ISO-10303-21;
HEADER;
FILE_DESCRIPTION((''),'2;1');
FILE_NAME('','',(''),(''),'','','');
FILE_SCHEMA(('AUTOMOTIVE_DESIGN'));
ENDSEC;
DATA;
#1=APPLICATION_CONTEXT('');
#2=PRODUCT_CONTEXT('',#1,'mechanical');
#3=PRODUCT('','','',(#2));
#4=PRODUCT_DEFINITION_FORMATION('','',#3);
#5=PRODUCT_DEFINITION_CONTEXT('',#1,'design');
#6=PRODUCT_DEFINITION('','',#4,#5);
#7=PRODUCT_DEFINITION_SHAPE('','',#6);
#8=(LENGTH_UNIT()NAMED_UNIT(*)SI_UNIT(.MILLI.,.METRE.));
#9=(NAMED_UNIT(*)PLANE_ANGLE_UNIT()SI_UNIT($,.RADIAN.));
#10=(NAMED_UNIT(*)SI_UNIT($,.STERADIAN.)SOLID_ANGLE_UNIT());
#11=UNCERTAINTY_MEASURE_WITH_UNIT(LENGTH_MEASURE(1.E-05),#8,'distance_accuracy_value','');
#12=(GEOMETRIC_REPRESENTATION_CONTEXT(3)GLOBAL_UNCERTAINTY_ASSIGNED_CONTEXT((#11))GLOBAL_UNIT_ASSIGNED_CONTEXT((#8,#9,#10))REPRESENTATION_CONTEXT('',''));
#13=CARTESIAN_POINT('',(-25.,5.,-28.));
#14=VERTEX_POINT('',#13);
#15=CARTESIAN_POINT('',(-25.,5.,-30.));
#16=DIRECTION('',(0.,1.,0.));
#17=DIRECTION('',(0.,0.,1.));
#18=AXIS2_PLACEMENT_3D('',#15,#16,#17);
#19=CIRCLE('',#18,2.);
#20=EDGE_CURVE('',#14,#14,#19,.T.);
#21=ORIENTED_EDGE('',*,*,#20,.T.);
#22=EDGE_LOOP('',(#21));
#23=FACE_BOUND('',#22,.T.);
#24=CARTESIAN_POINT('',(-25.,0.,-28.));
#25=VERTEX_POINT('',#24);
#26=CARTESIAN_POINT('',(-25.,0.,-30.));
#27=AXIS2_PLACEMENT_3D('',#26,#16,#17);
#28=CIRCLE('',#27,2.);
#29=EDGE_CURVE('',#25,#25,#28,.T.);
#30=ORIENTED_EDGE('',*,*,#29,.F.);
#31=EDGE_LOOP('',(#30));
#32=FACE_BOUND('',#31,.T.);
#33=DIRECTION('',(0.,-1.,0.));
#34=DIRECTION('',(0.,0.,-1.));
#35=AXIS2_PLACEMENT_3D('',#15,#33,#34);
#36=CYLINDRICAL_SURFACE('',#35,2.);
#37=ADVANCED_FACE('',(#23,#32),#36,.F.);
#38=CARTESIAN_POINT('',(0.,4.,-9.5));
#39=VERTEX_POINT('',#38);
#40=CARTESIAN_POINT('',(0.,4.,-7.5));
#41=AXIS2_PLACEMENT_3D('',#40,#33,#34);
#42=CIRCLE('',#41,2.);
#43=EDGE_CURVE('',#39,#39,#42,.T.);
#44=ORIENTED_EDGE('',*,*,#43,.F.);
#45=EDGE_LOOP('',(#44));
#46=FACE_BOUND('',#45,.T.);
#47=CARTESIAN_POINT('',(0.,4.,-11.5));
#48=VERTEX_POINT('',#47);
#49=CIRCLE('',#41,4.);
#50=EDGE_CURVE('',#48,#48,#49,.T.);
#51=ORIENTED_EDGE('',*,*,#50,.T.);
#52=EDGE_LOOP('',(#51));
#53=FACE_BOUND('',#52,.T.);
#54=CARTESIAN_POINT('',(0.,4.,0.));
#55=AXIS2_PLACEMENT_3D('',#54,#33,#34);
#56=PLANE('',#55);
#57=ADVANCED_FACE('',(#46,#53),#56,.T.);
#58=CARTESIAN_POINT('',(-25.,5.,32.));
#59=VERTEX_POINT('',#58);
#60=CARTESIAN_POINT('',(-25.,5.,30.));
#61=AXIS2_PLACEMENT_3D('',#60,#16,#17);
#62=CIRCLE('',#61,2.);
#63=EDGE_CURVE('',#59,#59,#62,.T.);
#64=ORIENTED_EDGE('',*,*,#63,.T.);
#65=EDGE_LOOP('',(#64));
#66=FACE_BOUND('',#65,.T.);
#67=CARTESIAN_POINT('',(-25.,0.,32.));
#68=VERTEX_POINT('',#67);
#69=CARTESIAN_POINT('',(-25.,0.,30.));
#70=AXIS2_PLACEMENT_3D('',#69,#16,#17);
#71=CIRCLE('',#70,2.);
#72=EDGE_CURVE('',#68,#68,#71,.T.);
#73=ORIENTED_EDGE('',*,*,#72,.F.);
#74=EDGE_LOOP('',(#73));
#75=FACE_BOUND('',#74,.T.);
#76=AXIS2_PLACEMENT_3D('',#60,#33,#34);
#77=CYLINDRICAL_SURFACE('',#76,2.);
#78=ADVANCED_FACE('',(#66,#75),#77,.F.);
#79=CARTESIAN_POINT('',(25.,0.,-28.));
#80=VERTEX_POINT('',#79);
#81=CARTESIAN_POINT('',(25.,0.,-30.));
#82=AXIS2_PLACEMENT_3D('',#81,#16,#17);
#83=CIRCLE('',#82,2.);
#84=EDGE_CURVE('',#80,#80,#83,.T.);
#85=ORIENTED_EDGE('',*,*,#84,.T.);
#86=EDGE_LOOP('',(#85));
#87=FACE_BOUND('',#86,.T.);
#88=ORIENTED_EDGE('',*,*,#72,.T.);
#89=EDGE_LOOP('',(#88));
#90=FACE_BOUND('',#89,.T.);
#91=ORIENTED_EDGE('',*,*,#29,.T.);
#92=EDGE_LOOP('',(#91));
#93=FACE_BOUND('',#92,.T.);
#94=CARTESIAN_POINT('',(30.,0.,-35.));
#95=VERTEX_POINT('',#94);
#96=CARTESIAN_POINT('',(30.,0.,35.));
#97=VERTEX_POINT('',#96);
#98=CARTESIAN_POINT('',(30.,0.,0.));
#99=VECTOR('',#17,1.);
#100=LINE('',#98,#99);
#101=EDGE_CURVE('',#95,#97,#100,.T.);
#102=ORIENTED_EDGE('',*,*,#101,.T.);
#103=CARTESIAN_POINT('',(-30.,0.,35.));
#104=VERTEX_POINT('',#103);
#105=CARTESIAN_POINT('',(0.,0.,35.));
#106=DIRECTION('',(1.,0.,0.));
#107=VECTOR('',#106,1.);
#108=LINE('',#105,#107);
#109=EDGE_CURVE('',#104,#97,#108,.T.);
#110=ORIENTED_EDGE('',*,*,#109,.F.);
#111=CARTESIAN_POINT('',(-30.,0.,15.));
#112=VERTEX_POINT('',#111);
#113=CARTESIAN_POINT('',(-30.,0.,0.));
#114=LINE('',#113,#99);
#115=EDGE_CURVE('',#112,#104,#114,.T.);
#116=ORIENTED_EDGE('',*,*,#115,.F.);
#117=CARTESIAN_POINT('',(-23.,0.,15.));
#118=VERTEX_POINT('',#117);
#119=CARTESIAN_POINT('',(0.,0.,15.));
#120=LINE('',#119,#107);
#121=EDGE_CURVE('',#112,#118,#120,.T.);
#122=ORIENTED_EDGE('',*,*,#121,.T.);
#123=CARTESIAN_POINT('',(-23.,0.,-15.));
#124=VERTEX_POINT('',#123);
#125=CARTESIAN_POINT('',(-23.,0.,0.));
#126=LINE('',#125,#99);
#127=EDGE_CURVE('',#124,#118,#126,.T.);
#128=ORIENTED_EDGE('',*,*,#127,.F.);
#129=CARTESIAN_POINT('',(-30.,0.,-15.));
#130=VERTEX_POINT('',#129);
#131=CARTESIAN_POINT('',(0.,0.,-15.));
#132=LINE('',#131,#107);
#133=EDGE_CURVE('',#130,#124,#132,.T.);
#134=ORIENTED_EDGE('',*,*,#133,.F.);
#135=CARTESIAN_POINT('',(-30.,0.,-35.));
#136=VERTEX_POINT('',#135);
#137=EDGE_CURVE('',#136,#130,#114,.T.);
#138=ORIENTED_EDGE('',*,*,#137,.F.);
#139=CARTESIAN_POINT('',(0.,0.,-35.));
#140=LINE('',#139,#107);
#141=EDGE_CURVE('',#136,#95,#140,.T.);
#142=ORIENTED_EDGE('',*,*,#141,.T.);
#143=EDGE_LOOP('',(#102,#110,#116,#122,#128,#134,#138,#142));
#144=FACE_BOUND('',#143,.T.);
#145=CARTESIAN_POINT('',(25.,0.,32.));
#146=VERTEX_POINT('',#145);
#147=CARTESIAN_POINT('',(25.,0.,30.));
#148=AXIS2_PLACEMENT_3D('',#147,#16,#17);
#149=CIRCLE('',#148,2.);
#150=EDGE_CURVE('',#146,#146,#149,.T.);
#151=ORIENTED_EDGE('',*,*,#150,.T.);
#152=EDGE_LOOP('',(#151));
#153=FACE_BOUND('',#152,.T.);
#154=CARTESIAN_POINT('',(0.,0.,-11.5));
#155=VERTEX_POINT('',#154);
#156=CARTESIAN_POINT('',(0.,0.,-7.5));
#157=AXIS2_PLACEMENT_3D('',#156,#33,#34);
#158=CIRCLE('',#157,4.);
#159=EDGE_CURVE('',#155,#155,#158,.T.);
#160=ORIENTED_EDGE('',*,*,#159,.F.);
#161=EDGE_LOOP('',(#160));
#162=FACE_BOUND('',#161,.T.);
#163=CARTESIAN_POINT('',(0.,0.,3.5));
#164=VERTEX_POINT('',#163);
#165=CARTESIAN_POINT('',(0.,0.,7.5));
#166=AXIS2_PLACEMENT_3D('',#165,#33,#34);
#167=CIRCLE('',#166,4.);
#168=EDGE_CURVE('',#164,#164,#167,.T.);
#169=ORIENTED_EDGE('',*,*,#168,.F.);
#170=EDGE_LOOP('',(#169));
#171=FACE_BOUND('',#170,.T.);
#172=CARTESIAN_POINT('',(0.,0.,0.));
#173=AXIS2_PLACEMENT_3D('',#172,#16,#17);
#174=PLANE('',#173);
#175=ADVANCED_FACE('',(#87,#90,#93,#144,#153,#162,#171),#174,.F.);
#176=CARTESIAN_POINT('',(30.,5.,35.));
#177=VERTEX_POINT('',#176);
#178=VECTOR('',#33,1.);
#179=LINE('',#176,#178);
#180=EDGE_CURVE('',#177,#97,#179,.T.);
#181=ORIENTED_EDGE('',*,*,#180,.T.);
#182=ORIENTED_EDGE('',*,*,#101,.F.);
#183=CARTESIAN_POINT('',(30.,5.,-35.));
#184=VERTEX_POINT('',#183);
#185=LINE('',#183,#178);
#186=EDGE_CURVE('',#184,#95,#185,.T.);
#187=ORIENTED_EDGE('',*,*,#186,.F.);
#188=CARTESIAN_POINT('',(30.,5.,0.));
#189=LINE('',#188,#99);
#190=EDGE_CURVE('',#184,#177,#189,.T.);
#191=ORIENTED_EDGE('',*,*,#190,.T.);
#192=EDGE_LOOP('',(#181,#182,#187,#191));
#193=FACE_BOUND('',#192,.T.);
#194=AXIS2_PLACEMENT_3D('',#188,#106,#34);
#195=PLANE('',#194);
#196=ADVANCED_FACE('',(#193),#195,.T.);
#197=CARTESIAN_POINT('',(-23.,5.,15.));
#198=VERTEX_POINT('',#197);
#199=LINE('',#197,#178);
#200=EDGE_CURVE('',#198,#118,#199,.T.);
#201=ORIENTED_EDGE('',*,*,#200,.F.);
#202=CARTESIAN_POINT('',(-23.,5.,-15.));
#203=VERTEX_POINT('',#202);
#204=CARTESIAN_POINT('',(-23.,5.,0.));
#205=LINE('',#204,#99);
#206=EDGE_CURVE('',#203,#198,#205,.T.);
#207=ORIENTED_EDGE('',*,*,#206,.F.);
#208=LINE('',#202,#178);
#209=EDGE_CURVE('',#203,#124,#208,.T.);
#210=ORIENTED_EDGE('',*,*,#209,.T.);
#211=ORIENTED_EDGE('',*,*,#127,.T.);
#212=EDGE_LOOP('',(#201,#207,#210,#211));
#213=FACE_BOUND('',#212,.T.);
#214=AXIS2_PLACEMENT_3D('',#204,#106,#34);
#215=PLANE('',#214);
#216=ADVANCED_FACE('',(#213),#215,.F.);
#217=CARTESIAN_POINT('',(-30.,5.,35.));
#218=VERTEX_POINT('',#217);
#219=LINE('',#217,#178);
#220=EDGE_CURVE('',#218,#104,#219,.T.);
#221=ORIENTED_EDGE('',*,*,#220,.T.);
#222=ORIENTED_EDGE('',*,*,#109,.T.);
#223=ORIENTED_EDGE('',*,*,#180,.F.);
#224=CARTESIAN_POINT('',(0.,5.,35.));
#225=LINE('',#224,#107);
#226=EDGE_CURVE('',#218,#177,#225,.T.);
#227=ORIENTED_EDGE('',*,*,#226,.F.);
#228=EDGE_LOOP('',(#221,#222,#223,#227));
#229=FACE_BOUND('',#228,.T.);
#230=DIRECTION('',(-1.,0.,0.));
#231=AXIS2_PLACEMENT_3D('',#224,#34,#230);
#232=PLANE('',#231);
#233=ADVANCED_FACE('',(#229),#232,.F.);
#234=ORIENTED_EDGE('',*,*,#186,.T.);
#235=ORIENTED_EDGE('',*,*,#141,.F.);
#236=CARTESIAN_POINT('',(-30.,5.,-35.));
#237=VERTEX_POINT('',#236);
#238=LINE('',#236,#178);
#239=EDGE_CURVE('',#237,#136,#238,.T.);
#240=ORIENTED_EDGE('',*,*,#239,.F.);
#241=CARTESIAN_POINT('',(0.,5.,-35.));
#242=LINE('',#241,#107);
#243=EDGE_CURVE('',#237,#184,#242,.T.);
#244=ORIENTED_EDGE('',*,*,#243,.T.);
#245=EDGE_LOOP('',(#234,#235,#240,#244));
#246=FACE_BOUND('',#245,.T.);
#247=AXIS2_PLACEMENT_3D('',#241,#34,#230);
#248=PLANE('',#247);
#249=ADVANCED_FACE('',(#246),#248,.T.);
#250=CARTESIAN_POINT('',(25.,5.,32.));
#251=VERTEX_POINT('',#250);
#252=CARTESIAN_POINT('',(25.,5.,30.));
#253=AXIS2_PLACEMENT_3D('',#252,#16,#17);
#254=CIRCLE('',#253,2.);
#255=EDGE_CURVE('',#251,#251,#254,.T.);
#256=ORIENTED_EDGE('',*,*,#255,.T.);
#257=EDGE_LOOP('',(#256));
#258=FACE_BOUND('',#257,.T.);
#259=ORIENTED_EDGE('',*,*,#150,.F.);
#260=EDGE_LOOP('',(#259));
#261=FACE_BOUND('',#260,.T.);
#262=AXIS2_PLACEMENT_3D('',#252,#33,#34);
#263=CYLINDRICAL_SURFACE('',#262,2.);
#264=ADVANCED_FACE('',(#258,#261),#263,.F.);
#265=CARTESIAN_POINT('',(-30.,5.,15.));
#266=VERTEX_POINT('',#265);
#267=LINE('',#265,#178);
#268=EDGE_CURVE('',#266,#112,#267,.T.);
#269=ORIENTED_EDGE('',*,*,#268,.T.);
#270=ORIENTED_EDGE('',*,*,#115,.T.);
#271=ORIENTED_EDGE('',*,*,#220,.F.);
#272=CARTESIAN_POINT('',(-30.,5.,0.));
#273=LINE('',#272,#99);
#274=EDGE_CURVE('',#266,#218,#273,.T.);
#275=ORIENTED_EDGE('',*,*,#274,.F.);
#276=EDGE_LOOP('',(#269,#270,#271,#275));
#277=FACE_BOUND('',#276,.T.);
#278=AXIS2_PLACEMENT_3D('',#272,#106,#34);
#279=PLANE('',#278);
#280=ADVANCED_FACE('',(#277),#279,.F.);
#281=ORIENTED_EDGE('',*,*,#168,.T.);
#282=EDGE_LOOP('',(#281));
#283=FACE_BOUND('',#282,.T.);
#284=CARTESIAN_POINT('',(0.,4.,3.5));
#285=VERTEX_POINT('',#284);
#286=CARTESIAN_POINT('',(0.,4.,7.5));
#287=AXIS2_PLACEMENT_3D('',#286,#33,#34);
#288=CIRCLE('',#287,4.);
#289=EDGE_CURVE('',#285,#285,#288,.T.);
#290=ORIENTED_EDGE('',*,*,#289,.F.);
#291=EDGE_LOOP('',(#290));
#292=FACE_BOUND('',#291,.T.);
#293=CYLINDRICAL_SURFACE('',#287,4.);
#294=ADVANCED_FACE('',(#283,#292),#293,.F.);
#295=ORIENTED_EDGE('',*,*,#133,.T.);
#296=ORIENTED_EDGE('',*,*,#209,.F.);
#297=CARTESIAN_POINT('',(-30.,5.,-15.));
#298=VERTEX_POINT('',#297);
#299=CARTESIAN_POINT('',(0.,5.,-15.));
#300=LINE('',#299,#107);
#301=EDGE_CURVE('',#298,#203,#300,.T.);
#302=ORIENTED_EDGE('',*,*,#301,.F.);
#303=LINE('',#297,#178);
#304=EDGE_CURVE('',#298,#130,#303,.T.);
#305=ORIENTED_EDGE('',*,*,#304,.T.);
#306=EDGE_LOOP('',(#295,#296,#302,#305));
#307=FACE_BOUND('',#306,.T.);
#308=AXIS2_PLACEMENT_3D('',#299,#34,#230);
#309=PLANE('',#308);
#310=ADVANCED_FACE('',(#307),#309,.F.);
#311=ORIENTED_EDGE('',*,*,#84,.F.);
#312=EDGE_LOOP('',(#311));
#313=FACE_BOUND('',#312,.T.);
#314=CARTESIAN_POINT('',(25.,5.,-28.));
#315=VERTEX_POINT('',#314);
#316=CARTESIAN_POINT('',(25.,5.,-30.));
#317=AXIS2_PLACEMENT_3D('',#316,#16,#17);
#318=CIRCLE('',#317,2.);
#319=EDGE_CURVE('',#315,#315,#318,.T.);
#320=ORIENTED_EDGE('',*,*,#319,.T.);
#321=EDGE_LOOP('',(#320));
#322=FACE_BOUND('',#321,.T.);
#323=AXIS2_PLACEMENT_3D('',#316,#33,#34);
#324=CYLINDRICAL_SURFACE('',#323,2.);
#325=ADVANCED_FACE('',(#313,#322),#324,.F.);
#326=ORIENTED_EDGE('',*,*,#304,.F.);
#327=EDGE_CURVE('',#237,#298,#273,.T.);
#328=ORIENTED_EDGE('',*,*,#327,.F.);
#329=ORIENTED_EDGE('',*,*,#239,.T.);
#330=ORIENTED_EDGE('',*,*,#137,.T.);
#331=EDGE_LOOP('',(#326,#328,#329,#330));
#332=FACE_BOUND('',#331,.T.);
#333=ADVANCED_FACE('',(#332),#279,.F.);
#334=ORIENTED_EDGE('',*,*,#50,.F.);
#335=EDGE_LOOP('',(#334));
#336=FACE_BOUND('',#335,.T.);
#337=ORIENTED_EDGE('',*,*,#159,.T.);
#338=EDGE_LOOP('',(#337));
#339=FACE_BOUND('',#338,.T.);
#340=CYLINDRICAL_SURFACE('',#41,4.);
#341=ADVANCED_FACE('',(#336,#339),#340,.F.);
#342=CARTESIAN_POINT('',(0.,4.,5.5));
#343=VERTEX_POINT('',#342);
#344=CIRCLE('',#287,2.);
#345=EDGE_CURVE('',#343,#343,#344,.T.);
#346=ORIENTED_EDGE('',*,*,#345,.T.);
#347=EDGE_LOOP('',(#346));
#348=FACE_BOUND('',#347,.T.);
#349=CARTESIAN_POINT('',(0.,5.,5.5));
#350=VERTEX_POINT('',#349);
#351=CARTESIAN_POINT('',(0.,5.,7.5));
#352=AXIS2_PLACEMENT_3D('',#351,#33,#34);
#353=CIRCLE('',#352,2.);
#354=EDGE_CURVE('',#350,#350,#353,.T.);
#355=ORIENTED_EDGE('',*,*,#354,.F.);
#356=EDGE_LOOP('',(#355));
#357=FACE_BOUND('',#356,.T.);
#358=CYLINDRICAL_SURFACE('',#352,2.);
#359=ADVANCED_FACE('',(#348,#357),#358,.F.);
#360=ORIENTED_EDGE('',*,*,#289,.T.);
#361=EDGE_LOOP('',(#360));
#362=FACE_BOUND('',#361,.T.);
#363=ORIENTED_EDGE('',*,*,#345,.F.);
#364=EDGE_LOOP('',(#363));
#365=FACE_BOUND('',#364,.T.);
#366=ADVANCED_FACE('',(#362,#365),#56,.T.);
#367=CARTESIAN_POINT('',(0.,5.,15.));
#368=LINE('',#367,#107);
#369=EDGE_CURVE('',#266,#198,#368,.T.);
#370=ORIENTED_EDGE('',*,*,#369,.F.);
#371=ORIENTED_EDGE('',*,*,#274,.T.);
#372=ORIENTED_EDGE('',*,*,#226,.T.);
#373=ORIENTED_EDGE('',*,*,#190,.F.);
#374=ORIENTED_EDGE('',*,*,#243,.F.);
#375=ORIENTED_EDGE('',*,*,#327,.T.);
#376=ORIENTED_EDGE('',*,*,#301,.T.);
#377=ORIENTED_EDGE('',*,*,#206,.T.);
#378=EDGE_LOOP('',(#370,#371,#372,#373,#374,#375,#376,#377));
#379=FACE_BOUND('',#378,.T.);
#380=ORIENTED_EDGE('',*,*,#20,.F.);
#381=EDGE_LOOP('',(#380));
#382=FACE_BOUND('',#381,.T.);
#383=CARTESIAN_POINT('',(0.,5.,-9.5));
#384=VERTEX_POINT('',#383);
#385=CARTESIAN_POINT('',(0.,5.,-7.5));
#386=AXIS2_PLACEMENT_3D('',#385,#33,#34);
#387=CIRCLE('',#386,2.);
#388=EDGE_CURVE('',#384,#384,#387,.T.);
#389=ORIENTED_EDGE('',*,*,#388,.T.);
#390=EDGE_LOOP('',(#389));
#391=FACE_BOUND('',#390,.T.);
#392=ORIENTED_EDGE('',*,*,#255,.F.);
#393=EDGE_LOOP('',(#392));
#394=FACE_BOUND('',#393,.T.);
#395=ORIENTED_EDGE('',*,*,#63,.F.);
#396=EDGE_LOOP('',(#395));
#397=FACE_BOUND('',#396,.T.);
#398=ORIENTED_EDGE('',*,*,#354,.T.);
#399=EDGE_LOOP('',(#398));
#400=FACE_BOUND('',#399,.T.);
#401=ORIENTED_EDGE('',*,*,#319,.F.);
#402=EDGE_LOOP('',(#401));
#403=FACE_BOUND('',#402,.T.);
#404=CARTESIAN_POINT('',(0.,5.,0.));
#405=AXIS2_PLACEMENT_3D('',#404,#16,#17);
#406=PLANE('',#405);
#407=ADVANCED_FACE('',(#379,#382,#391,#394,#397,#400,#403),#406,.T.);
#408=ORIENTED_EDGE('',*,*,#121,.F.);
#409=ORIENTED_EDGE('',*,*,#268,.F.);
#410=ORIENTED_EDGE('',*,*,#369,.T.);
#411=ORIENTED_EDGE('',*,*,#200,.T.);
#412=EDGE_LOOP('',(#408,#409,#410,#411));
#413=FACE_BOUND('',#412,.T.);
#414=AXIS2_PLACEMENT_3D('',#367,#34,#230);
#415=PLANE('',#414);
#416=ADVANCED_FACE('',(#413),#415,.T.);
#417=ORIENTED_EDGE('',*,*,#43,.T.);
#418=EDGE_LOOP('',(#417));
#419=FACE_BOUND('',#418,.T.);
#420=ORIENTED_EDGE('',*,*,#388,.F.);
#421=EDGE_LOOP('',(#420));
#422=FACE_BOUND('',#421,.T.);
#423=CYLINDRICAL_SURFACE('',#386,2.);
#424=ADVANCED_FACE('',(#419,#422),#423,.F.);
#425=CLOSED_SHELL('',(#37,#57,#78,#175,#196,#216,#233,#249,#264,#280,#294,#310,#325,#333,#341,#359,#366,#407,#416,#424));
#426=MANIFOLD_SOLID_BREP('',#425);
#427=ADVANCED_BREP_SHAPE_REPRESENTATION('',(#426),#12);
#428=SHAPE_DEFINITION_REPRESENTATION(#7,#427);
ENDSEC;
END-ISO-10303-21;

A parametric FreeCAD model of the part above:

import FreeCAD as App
import Part
import Sketcher


def add_polygon(sketch, points):
    """Adds a closed chain of lines whose ends are joined by coincident constraints."""
    first, n = sketch.GeometryCount, len(points)
    for a, b in zip(points, points[1:] + points[:1]):
        sketch.addGeometry(Part.LineSegment(App.Vector(*a, 0), App.Vector(*b, 0)), False)
    for i in range(n):
        sketch.addConstraint(Sketcher.Constraint("Coincident", first + i, 2, first + (i + 1) % n, 1))

doc = App.newDocument("Part")
body = doc.addObject("PartDesign::Body", "Body")

sketch1 = body.newObject("Sketcher::SketchObject", "Sketch")
sketch1.AttachmentSupport = (doc.getObject("XZ_Plane"), [""])
sketch1.MapMode = "FlatFace"
add_polygon(sketch1, [(-30, -35), (-30, -15), (-23, -15), (-23, 15), (-30, 15), (-30, 35), (30, 35), (30, -35)])
sketch1.addGeometry(Part.Circle(App.Vector(-25, 30, 0), App.Vector(0, 0, 1), 2), False)
sketch1.addGeometry(Part.Circle(App.Vector(25, 30, 0), App.Vector(0, 0, 1), 2), False)
sketch1.addGeometry(Part.Circle(App.Vector(-25, -30, 0), App.Vector(0, 0, 1), 2), False)
sketch1.addGeometry(Part.Circle(App.Vector(25, -30, 0), App.Vector(0, 0, 1), 2), False)
sketch1.addConstraint(Sketcher.Constraint("Vertical", 0))
sketch1.addConstraint(Sketcher.Constraint("Horizontal", 1))
sketch1.addConstraint(Sketcher.Constraint("Vertical", 2))
sketch1.addConstraint(Sketcher.Constraint("Horizontal", 3))
sketch1.addConstraint(Sketcher.Constraint("Vertical", 4))
sketch1.addConstraint(Sketcher.Constraint("Horizontal", 5))
sketch1.addConstraint(Sketcher.Constraint("Vertical", 6))
sketch1.addConstraint(Sketcher.Constraint("Horizontal", 7))
sketch1.addConstraint(Sketcher.Constraint("Equal", 8, 9))
sketch1.addConstraint(Sketcher.Constraint("Equal", 9, 10))
sketch1.addConstraint(Sketcher.Constraint("Equal", 10, 11))
sketch1.addConstraint(Sketcher.Constraint("Symmetric", 9, 3, 10, 3, -1, 1))
sketch1.addConstraint(Sketcher.Constraint("Symmetric", 8, 3, 11, 3, -1, 1))
sketch1.addConstraint(Sketcher.Constraint("Symmetric", 4, 2, 6, 2, -1, 1))
sketch1.addConstraint(Sketcher.Constraint("Symmetric", 8, 3, 9, 3, -2))
sketch1.addConstraint(Sketcher.Constraint("Symmetric", 0, 2, 3, 2, -1))
sketch1.addConstraint(Sketcher.Constraint("Diameter", 8, 4.0))
sketch1.addConstraint(Sketcher.Constraint("DistanceX", 1, 1, 1, 2, 7.0))
sketch1.addConstraint(Sketcher.Constraint("DistanceX", 5, 1, 5, 2, 60.0))
sketch1.addConstraint(Sketcher.Constraint("DistanceY", 0, 1, 0, 2, 20.0))
sketch1.addConstraint(Sketcher.Constraint("DistanceY", 2, 1, 2, 2, 30.0))
sketch1.addConstraint(Sketcher.Constraint("DistanceX", 8, 3, -1, 1, 25.0))
sketch1.addConstraint(Sketcher.Constraint("DistanceY", -1, 1, 8, 3, 30.0))
pad1 = body.newObject("PartDesign::Pad", "Pad")
pad1.Profile = sketch1
pad1.Length = 5
pad1.Reversed = True

sketch2 = body.newObject("Sketcher::SketchObject", "Sketch001")
sketch2.AttachmentSupport = (doc.getObject("XZ_Plane"), [""])
sketch2.MapMode = "FlatFace"
sketch2.addGeometry(Part.Circle(App.Vector(0, 7.5, 0), App.Vector(0, 0, 1), 4), False)
sketch2.addGeometry(Part.Circle(App.Vector(0, -7.5, 0), App.Vector(0, 0, 1), 4), False)
sketch2.addConstraint(Sketcher.Constraint("Equal", 0, 1))
sketch2.addConstraint(Sketcher.Constraint("Symmetric", 0, 3, 1, 3, -1, 1))
sketch2.addConstraint(Sketcher.Constraint("PointOnObject", 0, 3, -2))
sketch2.addConstraint(Sketcher.Constraint("Diameter", 0, 8.0))
sketch2.addConstraint(Sketcher.Constraint("DistanceY", 1, 3, 0, 3, 15.0))
pocket1 = body.newObject("PartDesign::Pocket", "Pocket")
pocket1.Profile = sketch2
pocket1.Length = 4

sketch3 = body.newObject("Sketcher::SketchObject", "Sketch002")
sketch3.AttachmentSupport = (doc.getObject("XZ_Plane"), [""])
sketch3.MapMode = "FlatFace"
sketch3.addGeometry(Part.Circle(App.Vector(0, -7.5, 0), App.Vector(0, 0, 1), 2), False)
sketch3.addGeometry(Part.Circle(App.Vector(0, 7.5, 0), App.Vector(0, 0, 1), 2), False)
sketch3.addConstraint(Sketcher.Constraint("Equal", 0, 1))
sketch3.addConstraint(Sketcher.Constraint("Symmetric", 0, 3, 1, 3, -1, 1))
sketch3.addConstraint(Sketcher.Constraint("PointOnObject", 0, 3, -2))
sketch3.addConstraint(Sketcher.Constraint("Diameter", 0, 4.0))
sketch3.addConstraint(Sketcher.Constraint("DistanceY", 0, 3, 1, 3, 15.0))
pocket2 = body.newObject("PartDesign::Pocket", "Pocket001")
pocket2.Profile = sketch3
pocket2.Type = "ThroughAll"

doc.recompute()
